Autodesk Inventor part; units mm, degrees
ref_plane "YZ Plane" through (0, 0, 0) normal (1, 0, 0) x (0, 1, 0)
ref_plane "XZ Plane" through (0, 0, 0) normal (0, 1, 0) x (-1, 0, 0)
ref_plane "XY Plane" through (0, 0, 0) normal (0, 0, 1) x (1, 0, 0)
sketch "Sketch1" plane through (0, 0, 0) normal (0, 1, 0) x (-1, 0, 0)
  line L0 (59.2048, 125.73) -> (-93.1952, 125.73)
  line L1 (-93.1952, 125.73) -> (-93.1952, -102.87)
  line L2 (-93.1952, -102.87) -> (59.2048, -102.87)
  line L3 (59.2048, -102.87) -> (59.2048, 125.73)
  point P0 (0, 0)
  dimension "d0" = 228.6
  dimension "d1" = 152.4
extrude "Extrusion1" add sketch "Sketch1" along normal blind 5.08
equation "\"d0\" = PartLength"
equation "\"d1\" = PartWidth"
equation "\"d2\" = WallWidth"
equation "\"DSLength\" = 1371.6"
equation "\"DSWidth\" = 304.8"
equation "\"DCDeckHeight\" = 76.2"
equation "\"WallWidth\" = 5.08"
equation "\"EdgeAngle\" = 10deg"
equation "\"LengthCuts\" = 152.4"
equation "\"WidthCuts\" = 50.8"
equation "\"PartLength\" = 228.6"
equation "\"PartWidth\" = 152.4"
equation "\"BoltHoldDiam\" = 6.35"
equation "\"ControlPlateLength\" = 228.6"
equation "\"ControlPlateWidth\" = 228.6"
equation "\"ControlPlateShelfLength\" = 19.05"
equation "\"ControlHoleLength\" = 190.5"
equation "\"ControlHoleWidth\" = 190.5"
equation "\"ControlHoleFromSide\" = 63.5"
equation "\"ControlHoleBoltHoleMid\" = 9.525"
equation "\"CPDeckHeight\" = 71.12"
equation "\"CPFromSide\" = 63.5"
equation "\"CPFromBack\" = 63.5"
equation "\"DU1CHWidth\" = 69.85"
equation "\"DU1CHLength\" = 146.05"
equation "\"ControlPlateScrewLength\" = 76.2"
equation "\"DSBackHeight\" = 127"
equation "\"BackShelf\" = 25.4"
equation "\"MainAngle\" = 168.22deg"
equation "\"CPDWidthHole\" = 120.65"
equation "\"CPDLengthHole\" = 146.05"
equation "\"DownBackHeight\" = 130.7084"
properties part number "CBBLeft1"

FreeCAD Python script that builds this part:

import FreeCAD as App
import Part
import Sketcher
Q = App.Units.Quantity


def add_polygon(sketch, points):
    """Adds a closed chain of lines whose ends are joined by coincident constraints."""
    first, n = sketch.GeometryCount, len(points)
    for a, b in zip(points, points[1:] + points[:1]):
        sketch.addGeometry(Part.LineSegment(App.Vector(*a, 0), App.Vector(*b, 0)), False)
    for i in range(n):
        sketch.addConstraint(Sketcher.Constraint("Coincident", first + i, 2, first + (i + 1) % n, 1))

doc = App.newDocument("Part")
params = doc.addObject("Spreadsheet::Sheet", "Params")
for row, (alias, value) in enumerate([
    ("sketch1_width", "6 in"),
    ("sketch1_height", "9 in"),
    ("pad1_length", "0.2 in"),
], start=1):
    params.set(f"A{row}", alias)
    params.set(f"B{row}", "=" + value)
    params.setAlias(f"B{row}", alias)

body = doc.addObject("PartDesign::Body", "Body")

# Sketch on XZ plane
sketch1 = body.newObject("Sketcher::SketchObject", "Sketch")
sketch1.AttachmentSupport = (doc.getObject("XZ_Plane"), [""])
sketch1.MapMode = "FlatFace"
add_polygon(sketch1, [(-59.2048, -102.87), (-59.2048, 125.73), (93.1952, 125.73), (93.1952, -102.87)])  # lines 0-3
sketch1.addConstraint([
    Sketcher.Constraint("Vertical", 0),
    Sketcher.Constraint("Horizontal", 1),
    Sketcher.Constraint("Vertical", 2),
    Sketcher.Constraint("Horizontal", 3),
    Sketcher.Constraint("DistanceX", 1, 1, 1, 2, Q("6 in")),
    Sketcher.Constraint("DistanceY", 0, 1, 0, 2, Q("9 in")),
    Sketcher.Constraint("DistanceY", -1, 1, 0, 2, Q("4.95 in")),
    Sketcher.Constraint("DistanceX", 0, 2, -1, 1, Q("2.3309 in")),
])
sketch1.setExpression("Constraints[8]", "Params.sketch1_width")
sketch1.setExpression("Constraints[9]", "Params.sketch1_height")
pad1 = body.newObject("PartDesign::Pad", "Pad")
pad1.Profile = sketch1
pad1.setExpression("Length", "Params.pad1_length")
pad1.Reversed = True

doc.recompute()
